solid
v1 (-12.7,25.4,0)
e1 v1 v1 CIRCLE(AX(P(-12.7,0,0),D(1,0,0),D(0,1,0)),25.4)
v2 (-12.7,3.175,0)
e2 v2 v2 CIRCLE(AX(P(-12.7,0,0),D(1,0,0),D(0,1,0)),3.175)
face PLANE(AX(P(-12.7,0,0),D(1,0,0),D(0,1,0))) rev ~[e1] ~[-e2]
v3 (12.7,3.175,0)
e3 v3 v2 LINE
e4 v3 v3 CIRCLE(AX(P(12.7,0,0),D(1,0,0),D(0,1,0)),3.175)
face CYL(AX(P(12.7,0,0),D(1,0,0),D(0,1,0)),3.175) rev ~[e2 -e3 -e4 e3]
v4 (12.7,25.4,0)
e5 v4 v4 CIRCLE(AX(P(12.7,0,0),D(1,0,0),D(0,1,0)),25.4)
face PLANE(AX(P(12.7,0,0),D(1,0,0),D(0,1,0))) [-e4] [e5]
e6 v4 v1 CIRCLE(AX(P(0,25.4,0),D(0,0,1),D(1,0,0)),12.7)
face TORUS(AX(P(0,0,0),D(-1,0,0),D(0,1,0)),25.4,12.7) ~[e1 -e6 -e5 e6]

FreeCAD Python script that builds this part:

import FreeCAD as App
import Part
import Sketcher

V = App.Vector
Q = App.Units.Quantity

doc = App.newDocument("Part")
params = doc.addObject("Spreadsheet::Sheet", "Params")
for row, (alias, value) in enumerate([
    ("sketch1_diameter", "1 in"),
    ("revolution_angle", "360 deg"),
    ("sketch2_diameter", "2 in"),
    ("pad1_length", "1 in"),
    ("sketch3_diameter", "0.25 in"),
    ("pocket1_length", "1 in"),
], start=1):
    params.set(f"A{row}", alias)
    params.set(f"B{row}", "=" + value)
    params.setAlias(f"B{row}", alias)

body = doc.addObject("PartDesign::Body", "Body")

# Sketch on XY plane
sketch1 = body.newObject("Sketcher::SketchObject", "Sketch")
sketch1.AttachmentSupport = (doc.getObject("XY_Plane"), [""])
sketch1.MapMode = "FlatFace"
sketch1.addGeometry(Part.Circle(V(0, 25, 0), V(0, 0, 1), 13), False)
sketch1.addConstraint(Sketcher.Constraint("PointOnObject", 0, 3, -2))
sketch1.addConstraint(Sketcher.Constraint("Diameter", 0, Q("1 in")))
sketch1.addConstraint(Sketcher.Constraint("DistanceY", -1, 1, 0, 3, Q("1 in")))
sketch1.setExpression("Constraints[1]", "Params.sketch1_diameter")
revolution = body.newObject("PartDesign::Revolution", "Revolution")
revolution.Profile = sketch1
revolution.ReferenceAxis = (sketch1, ["H_Axis"])
revolution.setExpression("Angle", "Params.revolution_angle")

# Sketch on YZ plane
sketch2 = body.newObject("Sketcher::SketchObject", "Sketch001")
sketch2.AttachmentSupport = (doc.getObject("YZ_Plane"), [""])
sketch2.MapMode = "FlatFace"
sketch2.addGeometry(Part.Circle(V(0, 0, 0), V(0, 0, 1), 25), False)
sketch2.addConstraint(Sketcher.Constraint("Coincident", 0, 3, -1, 1))
sketch2.addConstraint(Sketcher.Constraint("Diameter", 0, Q("2 in")))
sketch2.setExpression("Constraints[1]", "Params.sketch2_diameter")
pad1 = body.newObject("PartDesign::Pad", "Pad")
pad1.Profile = sketch2
pad1.setExpression("Length", "Params.pad1_length")
pad1.Midplane = True

# Sketch on YZ plane
sketch3 = body.newObject("Sketcher::SketchObject", "Sketch002")
sketch3.AttachmentSupport = (doc.getObject("YZ_Plane"), [""])
sketch3.MapMode = "FlatFace"
sketch3.AttachmentOffset = App.Placement(V(0, 0, 0.5 * 25.4), App.Rotation())
sketch3.addGeometry(Part.Circle(V(0, 0, 0), V(0, 0, 1), 3.2), False)
sketch3.addConstraint(Sketcher.Constraint("Coincident", 0, 3, -1, 1))
sketch3.addConstraint(Sketcher.Constraint("Diameter", 0, Q("0.25 in")))
sketch3.setExpression("Constraints[1]", "Params.sketch3_diameter")
pocket1 = body.newObject("PartDesign::Pocket", "Pocket")
pocket1.Profile = sketch3
pocket1.setExpression("Length", "Params.pocket1_length")

doc.recompute()
